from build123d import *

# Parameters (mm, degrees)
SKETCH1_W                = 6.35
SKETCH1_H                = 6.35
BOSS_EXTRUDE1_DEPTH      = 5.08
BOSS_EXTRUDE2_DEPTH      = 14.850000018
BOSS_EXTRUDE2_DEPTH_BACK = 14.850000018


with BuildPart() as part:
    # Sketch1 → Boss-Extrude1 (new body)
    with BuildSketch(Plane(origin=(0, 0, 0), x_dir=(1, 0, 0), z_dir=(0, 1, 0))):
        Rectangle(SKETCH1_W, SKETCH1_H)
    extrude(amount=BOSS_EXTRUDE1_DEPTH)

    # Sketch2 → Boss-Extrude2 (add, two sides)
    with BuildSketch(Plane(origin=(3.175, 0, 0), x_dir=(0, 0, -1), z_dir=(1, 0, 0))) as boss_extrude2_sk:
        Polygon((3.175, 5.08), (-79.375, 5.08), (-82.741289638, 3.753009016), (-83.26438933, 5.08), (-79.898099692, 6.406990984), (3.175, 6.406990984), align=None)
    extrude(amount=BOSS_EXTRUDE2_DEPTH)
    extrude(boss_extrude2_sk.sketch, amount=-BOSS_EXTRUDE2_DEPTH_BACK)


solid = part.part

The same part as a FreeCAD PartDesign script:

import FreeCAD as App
import Part
import Sketcher

V = App.Vector
Q = App.Units.Quantity

doc = App.newDocument("Part")
body = doc.addObject("PartDesign::Body", "Body")

# Sketch on XZ plane
sketch1 = body.newObject("Sketcher::SketchObject", "Sketch")
sketch1.AttachmentSupport = (doc.getObject("XZ_Plane"), [""])
sketch1.MapMode = "FlatFace"
sketch1.addGeometry(Part.LineSegment(V(-3, -3, 0), V(-3, 3, 0)), False)
sketch1.addGeometry(Part.LineSegment(V(-3, 3, 0), V(3, 3, 0)), False)
sketch1.addGeometry(Part.LineSegment(V(3, 3, 0), V(3, -3, 0)), False)
sketch1.addGeometry(Part.LineSegment(V(3, -3, 0), V(-3, -3, 0)), False)
sketch1.addConstraint(Sketcher.Constraint("Coincident", 0, 2, 1, 1))
sketch1.addConstraint(Sketcher.Constraint("Coincident", 1, 2, 2, 1))
sketch1.addConstraint(Sketcher.Constraint("Coincident", 2, 2, 3, 1))
sketch1.addConstraint(Sketcher.Constraint("Coincident", 3, 2, 0, 1))
sketch1.addConstraint(Sketcher.Constraint("Vertical", 0))
sketch1.addConstraint(Sketcher.Constraint("Horizontal", 1))
sketch1.addConstraint(Sketcher.Constraint("Vertical", 2))
sketch1.addConstraint(Sketcher.Constraint("Horizontal", 3))
sketch1.addConstraint(Sketcher.Constraint("Symmetric", 0, 2, 2, 2, -1, 1))
sketch1.addConstraint(Sketcher.Constraint("Equal", 3, 0))
sketch1.addConstraint(Sketcher.Constraint("DistanceX", 1, 1, 1, 2, Q("0.25 in")))
pad1 = body.newObject("PartDesign::Pad", "Pad")
pad1.Profile = sketch1
pad1.Length = Q("0.2 in")
pad1.Reversed = True

# Sketch on YZ plane
sketch2 = body.newObject("Sketcher::SketchObject", "Sketch001")
sketch2.AttachmentSupport = (doc.getObject("YZ_Plane"), [""])
sketch2.MapMode = "FlatFace"
sketch2.AttachmentOffset = App.Placement(V(0, 0, 0.125 * 25.4), App.Rotation())
sketch2.addGeometry(Part.LineSegment(V(5.1, 79.4, 0), V(5.1, -3.2, 0)), False)
sketch2.addGeometry(Part.LineSegment(V(5.1, -3.2, 0), V(6.4, -3.2, 0)), False)
sketch2.addGeometry(Part.LineSegment(V(6.4, -3.2, 0), V(6.4, 79.9, 0)), False)
sketch2.addGeometry(Part.LineSegment(V(6.4, 79.9, 0), V(5.1, 83.3, 0)), False)
sketch2.addGeometry(Part.LineSegment(V(5.1, 83.3, 0), V(3.8, 82.7, 0)), False)
sketch2.addGeometry(Part.LineSegment(V(3.8, 82.7, 0), V(5.1, 79.4, 0)), False)
sketch2.addConstraint(Sketcher.Constraint("Coincident", 0, 2, 1, 1))
sketch2.addConstraint(Sketcher.Constraint("Coincident", 1, 2, 2, 1))
sketch2.addConstraint(Sketcher.Constraint("Coincident", 2, 2, 3, 1))
sketch2.addConstraint(Sketcher.Constraint("Coincident", 3, 2, 4, 1))
sketch2.addConstraint(Sketcher.Constraint("Coincident", 4, 2, 5, 1))
sketch2.addConstraint(Sketcher.Constraint("Coincident", 5, 2, 0, 1))
sketch2.addConstraint(Sketcher.Constraint("Vertical", 0))
sketch2.addConstraint(Sketcher.Constraint("Horizontal", 1))
sketch2.addConstraint(Sketcher.Constraint("Vertical", 2))
sketch2.addConstraint(Sketcher.Constraint("Perpendicular", 3, 4))
sketch2.addConstraint(Sketcher.Constraint("Perpendicular", 4, 5))
sketch2.addConstraint(Sketcher.Constraint("Vertical", 0, 2, 3, 2))
sketch2.addConstraint(Sketcher.Constraint("Equal", 3, 5))
sketch2.addConstraint(Sketcher.Constraint("DistanceY", 0, 2, 0, 1, Q("3.25 in")))
sketch2.addConstraint(Sketcher.Constraint("DistanceX", -1, 1, 0, 2, Q("0.2 in")))
sketch2.addConstraint(Sketcher.Constraint("DistanceY", 0, 2, -1, 1, Q("0.125 in")))
sketch2.addConstraint(Sketcher.Constraint("DistanceY", 2, 1, 2, 2, 83.0731))
sketch2.addConstraint(Sketcher.Constraint("Distance", 3, 3.618399))
pad2 = body.newObject("PartDesign::Pad", "Pad001")
pad2.Profile = sketch2
pad2.Type = "TwoLengths"
pad2.Length = 14.85
pad2.Length2 = 14.85

doc.recompute()
